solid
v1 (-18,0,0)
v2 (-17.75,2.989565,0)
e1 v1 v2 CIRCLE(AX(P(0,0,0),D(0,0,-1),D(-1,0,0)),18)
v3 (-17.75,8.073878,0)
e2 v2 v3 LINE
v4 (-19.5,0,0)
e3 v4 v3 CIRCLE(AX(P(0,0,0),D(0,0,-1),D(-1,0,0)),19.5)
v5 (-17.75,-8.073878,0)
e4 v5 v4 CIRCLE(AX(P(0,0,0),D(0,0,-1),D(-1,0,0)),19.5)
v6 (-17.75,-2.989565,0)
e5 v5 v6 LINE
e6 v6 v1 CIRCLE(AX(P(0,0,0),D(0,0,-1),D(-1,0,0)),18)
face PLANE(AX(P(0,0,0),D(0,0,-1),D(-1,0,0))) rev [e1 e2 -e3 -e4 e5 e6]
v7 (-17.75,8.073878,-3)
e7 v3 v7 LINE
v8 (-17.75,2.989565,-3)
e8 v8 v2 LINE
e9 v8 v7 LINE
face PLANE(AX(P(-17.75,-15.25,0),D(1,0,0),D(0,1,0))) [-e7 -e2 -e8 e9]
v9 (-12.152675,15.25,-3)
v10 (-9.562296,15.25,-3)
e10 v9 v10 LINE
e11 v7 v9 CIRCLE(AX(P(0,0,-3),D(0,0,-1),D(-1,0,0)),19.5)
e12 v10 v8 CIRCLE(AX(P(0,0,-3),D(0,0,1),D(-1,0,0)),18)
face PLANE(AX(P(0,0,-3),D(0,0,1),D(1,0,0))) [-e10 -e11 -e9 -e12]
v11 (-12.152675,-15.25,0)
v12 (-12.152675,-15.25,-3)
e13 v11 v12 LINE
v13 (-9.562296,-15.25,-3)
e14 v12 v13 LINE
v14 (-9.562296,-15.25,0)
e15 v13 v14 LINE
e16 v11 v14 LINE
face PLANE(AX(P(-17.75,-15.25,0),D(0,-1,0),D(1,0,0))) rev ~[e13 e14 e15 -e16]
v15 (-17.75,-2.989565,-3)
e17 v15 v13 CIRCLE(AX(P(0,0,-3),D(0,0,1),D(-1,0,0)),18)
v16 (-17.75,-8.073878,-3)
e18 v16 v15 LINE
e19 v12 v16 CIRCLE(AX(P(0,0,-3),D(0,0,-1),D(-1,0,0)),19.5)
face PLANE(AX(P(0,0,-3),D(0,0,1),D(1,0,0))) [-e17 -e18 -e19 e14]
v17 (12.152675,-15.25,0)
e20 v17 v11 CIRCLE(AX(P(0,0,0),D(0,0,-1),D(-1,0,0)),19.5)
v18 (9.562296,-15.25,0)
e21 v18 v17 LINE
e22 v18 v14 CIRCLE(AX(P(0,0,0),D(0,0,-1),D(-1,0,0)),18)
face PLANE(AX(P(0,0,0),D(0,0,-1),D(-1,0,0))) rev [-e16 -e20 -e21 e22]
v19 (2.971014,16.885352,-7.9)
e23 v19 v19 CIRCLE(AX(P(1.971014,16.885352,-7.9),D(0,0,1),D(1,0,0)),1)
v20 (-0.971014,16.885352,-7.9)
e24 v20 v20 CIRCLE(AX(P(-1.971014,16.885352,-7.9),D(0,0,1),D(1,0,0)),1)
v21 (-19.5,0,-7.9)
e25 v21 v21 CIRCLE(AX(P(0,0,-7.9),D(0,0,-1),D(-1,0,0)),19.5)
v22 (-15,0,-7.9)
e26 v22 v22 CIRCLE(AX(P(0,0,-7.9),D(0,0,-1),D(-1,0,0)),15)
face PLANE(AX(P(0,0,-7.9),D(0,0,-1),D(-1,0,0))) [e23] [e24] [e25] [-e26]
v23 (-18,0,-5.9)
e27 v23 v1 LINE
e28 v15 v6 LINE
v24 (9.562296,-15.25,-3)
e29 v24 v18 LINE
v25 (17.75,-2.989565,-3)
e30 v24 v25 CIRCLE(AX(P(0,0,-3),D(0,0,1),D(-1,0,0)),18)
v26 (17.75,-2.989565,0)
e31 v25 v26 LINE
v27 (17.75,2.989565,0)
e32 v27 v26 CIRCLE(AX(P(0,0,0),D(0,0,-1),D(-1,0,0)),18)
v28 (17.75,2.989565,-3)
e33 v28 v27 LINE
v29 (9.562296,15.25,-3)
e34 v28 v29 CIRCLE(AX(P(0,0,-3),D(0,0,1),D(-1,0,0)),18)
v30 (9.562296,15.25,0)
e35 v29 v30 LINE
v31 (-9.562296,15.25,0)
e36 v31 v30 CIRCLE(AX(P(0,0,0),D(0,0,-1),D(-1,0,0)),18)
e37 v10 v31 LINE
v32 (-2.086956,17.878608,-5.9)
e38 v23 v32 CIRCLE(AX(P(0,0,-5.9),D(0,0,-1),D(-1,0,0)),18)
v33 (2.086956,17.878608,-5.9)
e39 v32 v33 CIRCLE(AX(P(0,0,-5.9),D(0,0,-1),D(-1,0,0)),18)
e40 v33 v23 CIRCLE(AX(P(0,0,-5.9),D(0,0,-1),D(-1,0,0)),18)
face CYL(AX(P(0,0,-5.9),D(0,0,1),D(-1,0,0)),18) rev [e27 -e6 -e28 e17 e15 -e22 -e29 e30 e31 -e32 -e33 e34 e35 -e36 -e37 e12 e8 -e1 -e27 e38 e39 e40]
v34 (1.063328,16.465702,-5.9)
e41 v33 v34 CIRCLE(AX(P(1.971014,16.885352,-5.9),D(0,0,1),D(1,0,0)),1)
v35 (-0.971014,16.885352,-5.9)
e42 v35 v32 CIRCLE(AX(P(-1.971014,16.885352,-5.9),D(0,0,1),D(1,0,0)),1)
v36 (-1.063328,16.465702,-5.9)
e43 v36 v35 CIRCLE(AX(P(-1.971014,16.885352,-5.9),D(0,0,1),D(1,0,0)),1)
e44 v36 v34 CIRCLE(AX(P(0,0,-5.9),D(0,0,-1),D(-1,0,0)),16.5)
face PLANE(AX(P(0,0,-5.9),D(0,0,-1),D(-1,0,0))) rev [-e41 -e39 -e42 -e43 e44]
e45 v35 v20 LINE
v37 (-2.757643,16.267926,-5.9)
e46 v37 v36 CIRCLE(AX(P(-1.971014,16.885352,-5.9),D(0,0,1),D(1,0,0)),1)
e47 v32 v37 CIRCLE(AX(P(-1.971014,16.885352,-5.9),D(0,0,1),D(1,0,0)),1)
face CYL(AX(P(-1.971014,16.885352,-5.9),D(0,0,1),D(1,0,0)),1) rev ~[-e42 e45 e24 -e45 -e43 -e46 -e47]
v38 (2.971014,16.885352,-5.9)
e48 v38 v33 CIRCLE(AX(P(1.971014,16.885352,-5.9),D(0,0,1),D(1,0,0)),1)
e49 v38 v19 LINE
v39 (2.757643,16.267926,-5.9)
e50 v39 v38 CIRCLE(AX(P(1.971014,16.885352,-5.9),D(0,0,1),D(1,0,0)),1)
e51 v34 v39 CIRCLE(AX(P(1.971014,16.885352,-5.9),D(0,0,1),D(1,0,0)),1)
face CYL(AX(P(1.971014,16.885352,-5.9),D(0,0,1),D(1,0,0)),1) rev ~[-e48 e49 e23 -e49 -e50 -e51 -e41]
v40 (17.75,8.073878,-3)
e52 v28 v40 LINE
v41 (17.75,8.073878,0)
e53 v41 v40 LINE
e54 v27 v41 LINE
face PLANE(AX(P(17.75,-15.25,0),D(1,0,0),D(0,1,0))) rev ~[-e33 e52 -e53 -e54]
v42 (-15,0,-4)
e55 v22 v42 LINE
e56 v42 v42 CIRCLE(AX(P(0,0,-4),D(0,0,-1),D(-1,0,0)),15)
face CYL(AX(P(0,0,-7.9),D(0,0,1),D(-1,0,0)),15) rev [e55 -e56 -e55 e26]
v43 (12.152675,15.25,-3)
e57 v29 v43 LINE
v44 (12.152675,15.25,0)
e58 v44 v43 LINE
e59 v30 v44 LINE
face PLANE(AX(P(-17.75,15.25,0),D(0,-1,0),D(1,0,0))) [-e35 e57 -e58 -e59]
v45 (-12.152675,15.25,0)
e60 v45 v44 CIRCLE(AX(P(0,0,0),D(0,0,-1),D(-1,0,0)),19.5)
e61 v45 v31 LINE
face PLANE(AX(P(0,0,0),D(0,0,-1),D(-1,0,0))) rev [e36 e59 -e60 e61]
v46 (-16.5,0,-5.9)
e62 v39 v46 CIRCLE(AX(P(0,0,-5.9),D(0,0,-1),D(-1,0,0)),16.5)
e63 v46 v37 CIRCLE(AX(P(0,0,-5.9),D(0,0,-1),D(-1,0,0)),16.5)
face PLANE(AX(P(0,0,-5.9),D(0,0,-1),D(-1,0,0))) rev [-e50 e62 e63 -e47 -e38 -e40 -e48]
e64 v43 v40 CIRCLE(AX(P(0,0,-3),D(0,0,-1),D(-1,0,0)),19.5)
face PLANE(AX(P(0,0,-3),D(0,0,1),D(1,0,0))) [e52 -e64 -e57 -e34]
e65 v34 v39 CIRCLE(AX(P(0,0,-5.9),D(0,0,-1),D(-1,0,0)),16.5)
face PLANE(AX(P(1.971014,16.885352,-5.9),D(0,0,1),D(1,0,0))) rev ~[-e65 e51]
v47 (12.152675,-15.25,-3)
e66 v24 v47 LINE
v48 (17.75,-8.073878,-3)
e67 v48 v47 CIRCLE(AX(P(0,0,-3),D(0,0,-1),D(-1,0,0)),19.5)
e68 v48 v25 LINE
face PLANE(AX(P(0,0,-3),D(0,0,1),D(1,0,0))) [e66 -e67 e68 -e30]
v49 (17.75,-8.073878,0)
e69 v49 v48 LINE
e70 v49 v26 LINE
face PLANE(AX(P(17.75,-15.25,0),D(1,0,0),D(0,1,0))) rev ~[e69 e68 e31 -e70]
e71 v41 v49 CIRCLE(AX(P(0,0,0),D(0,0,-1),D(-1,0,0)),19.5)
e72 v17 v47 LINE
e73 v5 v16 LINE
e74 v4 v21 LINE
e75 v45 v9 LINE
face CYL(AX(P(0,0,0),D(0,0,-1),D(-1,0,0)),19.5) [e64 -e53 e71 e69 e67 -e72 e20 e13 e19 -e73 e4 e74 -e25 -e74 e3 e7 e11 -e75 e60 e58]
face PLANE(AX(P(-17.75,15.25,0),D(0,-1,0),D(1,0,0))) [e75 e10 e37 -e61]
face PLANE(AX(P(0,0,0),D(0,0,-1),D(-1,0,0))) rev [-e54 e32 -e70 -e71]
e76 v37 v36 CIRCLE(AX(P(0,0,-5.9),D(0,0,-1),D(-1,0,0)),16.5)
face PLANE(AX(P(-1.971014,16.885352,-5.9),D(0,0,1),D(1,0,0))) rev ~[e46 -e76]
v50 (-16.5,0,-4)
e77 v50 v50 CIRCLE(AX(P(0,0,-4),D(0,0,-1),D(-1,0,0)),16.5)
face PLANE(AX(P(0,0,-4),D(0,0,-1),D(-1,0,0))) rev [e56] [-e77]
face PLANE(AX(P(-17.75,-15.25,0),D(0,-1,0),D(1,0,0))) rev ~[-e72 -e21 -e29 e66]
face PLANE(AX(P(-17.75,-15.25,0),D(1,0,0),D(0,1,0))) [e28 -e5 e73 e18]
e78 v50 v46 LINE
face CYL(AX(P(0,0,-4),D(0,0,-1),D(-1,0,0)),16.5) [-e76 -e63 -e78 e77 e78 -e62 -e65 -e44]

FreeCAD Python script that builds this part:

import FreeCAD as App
import Part
import Sketcher

V = App.Vector
Q = App.Units.Quantity

doc = App.newDocument("Part")
body = doc.addObject("PartDesign::Body", "Body")

# Sketch on XZ plane
sketch1 = doc.addObject("Sketcher::SketchObject", "Sketch")
body.addObject(sketch1)
sketch1.AttachmentSupport = (doc.XZ_Plane, [""])
sketch1.MapMode = "FlatFace"
sketch1.addGeometry([
    Part.LineSegment(V(-15, -4, 0), V(-16.5, -4, 0)),  # 0
    Part.LineSegment(V(-16.5, -4, 0), V(-16.5, -5.9, 0)),  # 1
    Part.LineSegment(V(-16.5, -5.9, 0), V(-18, -5.9, 0)),  # 2
    Part.LineSegment(V(-18, -5.9, 0), V(-18, 0, 0)),  # 3
    Part.LineSegment(V(-18, 0, 0), V(-19.5, 0, 0)),  # 4
    Part.LineSegment(V(-19.5, 0, 0), V(-19.5, -7.9, 0)),  # 5
    Part.LineSegment(V(-19.5, -7.9, 0), V(-15, -7.9, 0)),  # 6
    Part.LineSegment(V(-15, -7.9, 0), V(-15, -4, 0)),  # 7
], False)
sketch1.addConstraint([
    Sketcher.Constraint("Coincident", 0, 2, 1, 1),
    Sketcher.Constraint("Coincident", 1, 2, 2, 1),
    Sketcher.Constraint("Coincident", 2, 2, 3, 1),
    Sketcher.Constraint("Coincident", 3, 2, 4, 1),
    Sketcher.Constraint("Coincident", 4, 2, 5, 1),
    Sketcher.Constraint("Coincident", 5, 2, 6, 1),
    Sketcher.Constraint("Coincident", 6, 2, 7, 1),
    Sketcher.Constraint("Coincident", 7, 2, 0, 1),
    Sketcher.Constraint("Horizontal", 0),
    Sketcher.Constraint("Vertical", 1),
    Sketcher.Constraint("Horizontal", 2),
    Sketcher.Constraint("Vertical", 3),
    Sketcher.Constraint("Horizontal", 4),
    Sketcher.Constraint("Vertical", 5),
    Sketcher.Constraint("Horizontal", 6),
    Sketcher.Constraint("Vertical", 7),
    Sketcher.Constraint("PointOnObject", 3, 2, -1),
    Sketcher.Constraint("Equal", 0, 2),
    Sketcher.Constraint("Equal", 2, 4),
    Sketcher.Constraint("DistanceX", 0, 2, 0, 1, Q("1.5 mm")),
    Sketcher.Constraint("DistanceY", 1, 2, 1, 1, Q("1.9 mm")),
    Sketcher.Constraint("DistanceY", 3, 1, 3, 2, Q("5.9 mm")),
    Sketcher.Constraint("DistanceY", 5, 2, 5, 1, Q("7.9 mm")),
    Sketcher.Constraint("DistanceX", 2, 2, -1, 1, Q("18 mm")),
])
revolution = doc.addObject("PartDesign::Revolution", "Revolution")
body.addObject(revolution)
revolution.Profile = sketch1
revolution.ReferenceAxis = (sketch1, ["V_Axis"])
revolution.Angle = 360

# Sketch on XY plane
sketch2 = doc.addObject("Sketcher::SketchObject", "Sketch001")
body.addObject(sketch2)
sketch2.AttachmentSupport = (doc.XY_Plane, [""])
sketch2.MapMode = "FlatFace"
sketch2.AttachmentOffset = App.Placement(V(0, 0, -5.9), App.Rotation())
sketch2.addGeometry([
    Part.Circle(V(-2, 16.9, 0), V(0, 0, 1), 1),
    Part.Circle(V(2, 16.9, 0), V(0, 0, 1), 1),
], False)
sketch2.addConstraint([
    Sketcher.Constraint("Equal", 0, 1),
    Sketcher.Constraint("Symmetric", 0, 3, 1, 3, -2),
    Sketcher.Constraint("Diameter", 0, Q("2 mm")),
    Sketcher.Constraint("DistanceX", 0, 3, 1, 3, Q("3.942028 mm")),
    Sketcher.Constraint("DistanceY", -1, 1, 0, 3, Q("16.885352 mm")),
])
pocket1 = doc.addObject("PartDesign::Pocket", "Pocket")
body.addObject(pocket1)
pocket1.Profile = sketch2
pocket1.Length = 25

# Sketch on XY plane
sketch3 = doc.addObject("Sketcher::SketchObject", "Sketch002")
body.addObject(sketch3)
sketch3.AttachmentSupport = (doc.XY_Plane, [""])
sketch3.MapMode = "FlatFace"
sketch3.addGeometry([
    Part.LineSegment(V(-18, 15, 0), V(-18, -15, 0)),
    Part.LineSegment(V(-18, -15, 0), V(18, -15, 0)),
    Part.LineSegment(V(18, -15, 0), V(18, 15, 0)),
    Part.LineSegment(V(18, 15, 0), V(-18, 15, 0)),
], False)
sketch3.addConstraint([
    Sketcher.Constraint("Coincident", 0, 2, 1, 1),
    Sketcher.Constraint("Coincident", 1, 2, 2, 1),
    Sketcher.Constraint("Coincident", 2, 2, 3, 1),
    Sketcher.Constraint("Coincident", 3, 2, 0, 1),
    Sketcher.Constraint("Vertical", 0),
    Sketcher.Constraint("Horizontal", 1),
    Sketcher.Constraint("Vertical", 2),
    Sketcher.Constraint("Horizontal", 3),
    Sketcher.Constraint("Symmetric", 0, 2, 2, 2, -1, 1),
    Sketcher.Constraint("DistanceX", 1, 1, 1, 2, Q("35.5 mm")),
    Sketcher.Constraint("DistanceY", 0, 2, 0, 1, Q("30.5 mm")),
])
pocket2 = doc.addObject("PartDesign::Pocket", "Pocket001")
body.addObject(pocket2)
pocket2.Profile = sketch3
pocket2.Length = 3

doc.recompute()
